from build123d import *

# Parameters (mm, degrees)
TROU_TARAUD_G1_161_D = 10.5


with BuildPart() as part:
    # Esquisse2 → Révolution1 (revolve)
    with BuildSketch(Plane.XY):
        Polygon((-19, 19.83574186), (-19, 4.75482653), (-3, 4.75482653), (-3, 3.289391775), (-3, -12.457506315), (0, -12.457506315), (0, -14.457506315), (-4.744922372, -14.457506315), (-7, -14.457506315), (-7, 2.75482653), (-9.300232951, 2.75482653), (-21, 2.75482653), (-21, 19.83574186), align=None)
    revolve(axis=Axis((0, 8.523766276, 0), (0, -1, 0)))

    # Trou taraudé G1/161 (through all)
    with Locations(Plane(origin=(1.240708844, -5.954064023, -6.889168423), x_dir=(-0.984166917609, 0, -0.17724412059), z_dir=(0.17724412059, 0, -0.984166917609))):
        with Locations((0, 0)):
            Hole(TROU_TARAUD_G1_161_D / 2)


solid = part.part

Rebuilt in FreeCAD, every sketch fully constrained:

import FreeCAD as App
import Part
import Sketcher

V = App.Vector
Q = App.Units.Quantity

doc = App.newDocument("Part")
params = doc.addObject("Spreadsheet::Sheet", "Params")
for row, (alias, value) in enumerate([
    ("sketch1_width", "2 mm"),
    ("sketch1_width2", "14 mm"),
    ("sketch1_width3", "7 mm"),
    ("sketch1_width4", "3 mm"),
    ("revolution_angle", "360 deg"),
    ("sketch2_diameter", "10.5 mm"),
    ("hole_diameter", "10.5 mm"),
], start=1):
    params.set(f"A{row}", alias)
    params.set(f"B{row}", "=" + value)
    params.setAlias(f"B{row}", alias)

body = doc.addObject("PartDesign::Body", "Body")

# Sketch on XY plane
sketch1 = body.newObject("Sketcher::SketchObject", "Sketch")
sketch1.AttachmentSupport = (doc.getObject("XY_Plane"), [""])
sketch1.MapMode = "FlatFace"
sketch1.addGeometry(Part.LineSegment(V(-19, 4.8, 0), V(-19, 19.8, 0)), False)
sketch1.addGeometry(Part.LineSegment(V(-19, 19.8, 0), V(-21, 19.8, 0)), False)
sketch1.addGeometry(Part.LineSegment(V(-21, 19.8, 0), V(-21, 2.8, 0)), False)
sketch1.addGeometry(Part.LineSegment(V(-21, 2.8, 0), V(-7, 2.8, 0)), False)
sketch1.addGeometry(Part.LineSegment(V(-7, 2.8, 0), V(-7, -14.5, 0)), False)
sketch1.addGeometry(Part.LineSegment(V(-7, -14.5, 0), V(0, -14.5, 0)), False)
sketch1.addGeometry(Part.LineSegment(V(0, -14.5, 0), V(0, -12.5, 0)), False)
sketch1.addGeometry(Part.LineSegment(V(0, -12.5, 0), V(-3, -12.5, 0)), False)
sketch1.addGeometry(Part.LineSegment(V(-3, -12.5, 0), V(-3, 4.8, 0)), False)
sketch1.addGeometry(Part.LineSegment(V(-3, 4.8, 0), V(-19, 4.8, 0)), False)
sketch1.addConstraint(Sketcher.Constraint("Coincident", 0, 2, 1, 1))
sketch1.addConstraint(Sketcher.Constraint("Coincident", 1, 2, 2, 1))
sketch1.addConstraint(Sketcher.Constraint("Coincident", 2, 2, 3, 1))
sketch1.addConstraint(Sketcher.Constraint("Coincident", 3, 2, 4, 1))
sketch1.addConstraint(Sketcher.Constraint("Coincident", 4, 2, 5, 1))
sketch1.addConstraint(Sketcher.Constraint("Coincident", 5, 2, 6, 1))
sketch1.addConstraint(Sketcher.Constraint("Coincident", 6, 2, 7, 1))
sketch1.addConstraint(Sketcher.Constraint("Coincident", 7, 2, 8, 1))
sketch1.addConstraint(Sketcher.Constraint("Coincident", 8, 2, 9, 1))
sketch1.addConstraint(Sketcher.Constraint("Coincident", 9, 2, 0, 1))
sketch1.addConstraint(Sketcher.Constraint("Vertical", 0))
sketch1.addConstraint(Sketcher.Constraint("Horizontal", 1))
sketch1.addConstraint(Sketcher.Constraint("Vertical", 2))
sketch1.addConstraint(Sketcher.Constraint("Horizontal", 3))
sketch1.addConstraint(Sketcher.Constraint("Vertical", 4))
sketch1.addConstraint(Sketcher.Constraint("Horizontal", 5))
sketch1.addConstraint(Sketcher.Constraint("Vertical", 6))
sketch1.addConstraint(Sketcher.Constraint("Horizontal", 7))
sketch1.addConstraint(Sketcher.Constraint("Vertical", 8))
sketch1.addConstraint(Sketcher.Constraint("Horizontal", 9))
sketch1.addConstraint(Sketcher.Constraint("PointOnObject", 5, 2, -2))
sketch1.addConstraint(Sketcher.Constraint("Equal", 1, 6))
sketch1.addConstraint(Sketcher.Constraint("Equal", 4, 8))
sketch1.addConstraint(Sketcher.Constraint("DistanceX", 1, 2, 1, 1, Q("2 mm")))
sketch1.addConstraint(Sketcher.Constraint("DistanceX", 3, 1, 3, 2, Q("14 mm")))
sketch1.addConstraint(Sketcher.Constraint("DistanceX", 5, 1, 5, 2, Q("7 mm")))
sketch1.addConstraint(Sketcher.Constraint("DistanceX", 7, 2, 7, 1, Q("3 mm")))
sketch1.addConstraint(Sketcher.Constraint("DistanceY", 0, 1, 0, 2, Q("15.080915 mm")))
sketch1.addConstraint(Sketcher.Constraint("DistanceY", 4, 2, 4, 1, Q("17.212333 mm")))
sketch1.addConstraint(Sketcher.Constraint("DistanceY", -1, 1, 0, 2, Q("19.835742 mm")))
sketch1.setExpression("Constraints[23]", "Params.sketch1_width")
sketch1.setExpression("Constraints[24]", "Params.sketch1_width2")
sketch1.setExpression("Constraints[25]", "Params.sketch1_width3")
sketch1.setExpression("Constraints[26]", "Params.sketch1_width4")
revolution = body.newObject("PartDesign::Revolution", "Revolution")
revolution.Profile = sketch1
revolution.ReferenceAxis = (sketch1, ["V_Axis"])
revolution.setExpression("Angle", "Params.revolution_angle")

# Sketch on an angled plane
sketch2 = body.newObject("Sketcher::SketchObject", "Sketch001")
sketch2.Placement = App.Placement(V(1.240709, 0, -6.889168), App.Rotation(V(-0.984166918, 0, -0.177244121), V(0, 1.000000001, 0), V(0.177244121, 0, -0.984166918), "ZXY"))
sketch2.addGeometry(Part.Circle(V(0, -6, 0), V(0, 0, 1), 5), False)
sketch2.addConstraint(Sketcher.Constraint("PointOnObject", 0, 3, -2))
sketch2.addConstraint(Sketcher.Constraint("Diameter", 0, Q("10.5 mm")))
sketch2.addConstraint(Sketcher.Constraint("DistanceY", 0, 3, -1, 1, Q("5.954064 mm")))
sketch2.setExpression("Constraints[1]", "Params.sketch2_diameter")
doc.recompute()
hole = body.newObject("PartDesign::Hole", "Hole")
hole.Profile = sketch2
hole.ThreadType = "None"
hole.setExpression("Diameter", "Params.hole_diameter")
hole.DepthType = "ThroughAll"

doc.recompute()
